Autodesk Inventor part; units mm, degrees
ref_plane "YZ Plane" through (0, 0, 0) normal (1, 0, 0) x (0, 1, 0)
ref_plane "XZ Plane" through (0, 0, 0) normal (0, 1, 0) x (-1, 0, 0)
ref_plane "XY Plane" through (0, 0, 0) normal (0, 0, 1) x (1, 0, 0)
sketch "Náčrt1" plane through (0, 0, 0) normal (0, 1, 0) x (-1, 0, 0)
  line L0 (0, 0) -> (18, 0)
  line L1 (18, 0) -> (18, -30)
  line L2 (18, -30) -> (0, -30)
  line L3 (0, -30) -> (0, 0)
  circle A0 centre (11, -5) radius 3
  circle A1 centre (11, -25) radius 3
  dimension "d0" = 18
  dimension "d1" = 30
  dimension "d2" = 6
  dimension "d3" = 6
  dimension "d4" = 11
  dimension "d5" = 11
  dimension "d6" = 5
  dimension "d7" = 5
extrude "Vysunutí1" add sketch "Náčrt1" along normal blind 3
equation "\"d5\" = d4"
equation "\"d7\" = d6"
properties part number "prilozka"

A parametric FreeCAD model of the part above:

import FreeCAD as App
import Part
import Sketcher

doc = App.newDocument("Part")
params = doc.addObject("Spreadsheet::Sheet", "Params")
for row, (alias, value) in enumerate([
    ("sketch1_diameter", "6 mm"),
    ("sketch1_width", "18 mm"),
    ("sketch1_height", "30 mm"),
    ("pad1_length", "3 mm"),
], start=1):
    params.set(f"A{row}", alias)
    params.set(f"B{row}", "=" + value)
    params.setAlias(f"B{row}", alias)

body = doc.addObject("PartDesign::Body", "Body")

# Sketch on XZ plane
sketch1 = doc.addObject("Sketcher::SketchObject", "Sketch")
body.addObject(sketch1)
sketch1.AttachmentSupport = (doc.XZ_Plane, [""])
sketch1.MapMode = "FlatFace"
sketch1.addGeometry([
    Part.LineSegment(App.Vector(-18, 0, 0), App.Vector(0, 0, 0)),  # 0
    Part.LineSegment(App.Vector(0, 0, 0), App.Vector(0, -30, 0)),  # 1
    Part.LineSegment(App.Vector(0, -30, 0), App.Vector(-18, -30, 0)),  # 2
    Part.LineSegment(App.Vector(-18, -30, 0), App.Vector(-18, 0, 0)),  # 3
    Part.Circle(App.Vector(-11, -25, 0), App.Vector(0, 0, 1), 3),  # 4
    Part.Circle(App.Vector(-11, -5, 0), App.Vector(0, 0, 1), 3),  # 5
], False)
sketch1.addConstraint([
    Sketcher.Constraint("Coincident", 0, 2, 1, 1),
    Sketcher.Constraint("Coincident", 1, 2, 2, 1),
    Sketcher.Constraint("Coincident", 2, 2, 3, 1),
    Sketcher.Constraint("Coincident", 3, 2, 0, 1),
    Sketcher.Constraint("Horizontal", 0),
    Sketcher.Constraint("Vertical", 1),
    Sketcher.Constraint("Horizontal", 2),
    Sketcher.Constraint("Vertical", 3),
    Sketcher.Constraint("Coincident", 0, 2, -1, 1),
    Sketcher.Constraint("Equal", 4, 5),
    Sketcher.Constraint("Vertical", 4, 3, 5, 3),
    Sketcher.Constraint("Diameter", 4, 6.0),
    Sketcher.Constraint("DistanceX", 0, 1, 0, 2, 18.0),
    Sketcher.Constraint("DistanceY", 1, 2, 1, 1, 30.0),
    Sketcher.Constraint("DistanceX", 4, 3, -1, 1, 11.0),
    Sketcher.Constraint("DistanceY", 5, 3, -1, 1, 5.0),
    Sketcher.Constraint("DistanceY", 1, 2, 4, 3, 5.0),
])
sketch1.setExpression("Constraints[11]", "Params.sketch1_diameter")
sketch1.setExpression("Constraints[12]", "Params.sketch1_width")
sketch1.setExpression("Constraints[13]", "Params.sketch1_height")
pad1 = doc.addObject("PartDesign::Pad", "Pad")
body.addObject(pad1)
pad1.Profile = sketch1
pad1.setExpression("Length", "Params.pad1_length")
pad1.Reversed = True

doc.recompute()
